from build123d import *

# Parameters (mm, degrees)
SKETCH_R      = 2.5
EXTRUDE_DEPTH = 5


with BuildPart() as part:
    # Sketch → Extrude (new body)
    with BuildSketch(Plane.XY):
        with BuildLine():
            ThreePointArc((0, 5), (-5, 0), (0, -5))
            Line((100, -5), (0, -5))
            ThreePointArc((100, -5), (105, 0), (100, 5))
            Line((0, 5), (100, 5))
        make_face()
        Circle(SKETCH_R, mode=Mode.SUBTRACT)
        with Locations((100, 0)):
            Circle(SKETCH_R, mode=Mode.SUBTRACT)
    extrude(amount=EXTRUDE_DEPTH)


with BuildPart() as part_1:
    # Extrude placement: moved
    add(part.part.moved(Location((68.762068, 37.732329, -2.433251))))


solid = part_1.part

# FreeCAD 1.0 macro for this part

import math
import FreeCAD as App
import Part
import Sketcher
from FreeCAD import Vector
Q = App.Units.Quantity

doc = App.newDocument("Part")
body = doc.addObject("PartDesign::Body", "Body")

# Sketch on XY plane
sketch1 = doc.addObject("Sketcher::SketchObject", "Sketch")
body.addObject(sketch1)
sketch1.AttachmentSupport = (doc.XY_Plane, [""])
sketch1.MapMode = "FlatFace"
sketch1.addGeometry([
    Part.ArcOfCircle(Part.Circle(Vector(0, 0, 0), Vector(0, 0, 1), 5), math.radians(90), math.radians(270)),  # 0
    Part.LineSegment(Vector(0, -5, 0), Vector(100, -5, 0)),  # 1
    Part.ArcOfCircle(Part.Circle(Vector(100, 0, 0), Vector(0, 0, 1), 5), math.radians(-90), math.radians(90)),  # 2
    Part.LineSegment(Vector(100, 5, 0), Vector(0, 5, 0)),  # 3
    Part.Circle(Vector(0, 0, 0), Vector(0, 0, 1), 2.5),  # 4
    Part.Circle(Vector(100, 0, 0), Vector(0, 0, 1), 2.5),  # 5
], False)
sketch1.addConstraint([
    Sketcher.Constraint("Tangent", 0, 2, 1, 1),
    Sketcher.Constraint("Tangent", 1, 2, 2, 1),
    Sketcher.Constraint("Tangent", 2, 2, 3, 1),
    Sketcher.Constraint("Tangent", 3, 2, 0, 1),
    Sketcher.Constraint("Horizontal", 1),
    Sketcher.Constraint("Horizontal", 3),
    Sketcher.Constraint("Coincident", 0, 3, -1, 1),
    Sketcher.Constraint("Coincident", 4, 3, -1, 1),
    Sketcher.Constraint("Coincident", 5, 3, 2, 3),
    Sketcher.Constraint("Equal", 4, 5),
    Sketcher.Constraint("Diameter", 4, Q("5 mm")),
    Sketcher.Constraint("Radius", 0, Q("5 mm")),
    Sketcher.Constraint("DistanceX", 1, 1, 1, 2, Q("100 mm")),
])
pad1 = doc.addObject("PartDesign::Pad", "Pad")
body.addObject(pad1)
pad1.Profile = sketch1
pad1.Length = 5
body2 = doc.addObject("PartDesign::Body", "Body001")
doc.recompute()

body.Placement = App.Placement(Vector(68.762068, 37.732329, -2.433251), App.Rotation(Vector(0, 0, 1), 0))
boolean = doc.addObject("PartDesign::Boolean", "Boolean")
body2.addObject(boolean)
boolean.Type = "Fuse"
boolean.addObjects([body])

doc.recompute()
